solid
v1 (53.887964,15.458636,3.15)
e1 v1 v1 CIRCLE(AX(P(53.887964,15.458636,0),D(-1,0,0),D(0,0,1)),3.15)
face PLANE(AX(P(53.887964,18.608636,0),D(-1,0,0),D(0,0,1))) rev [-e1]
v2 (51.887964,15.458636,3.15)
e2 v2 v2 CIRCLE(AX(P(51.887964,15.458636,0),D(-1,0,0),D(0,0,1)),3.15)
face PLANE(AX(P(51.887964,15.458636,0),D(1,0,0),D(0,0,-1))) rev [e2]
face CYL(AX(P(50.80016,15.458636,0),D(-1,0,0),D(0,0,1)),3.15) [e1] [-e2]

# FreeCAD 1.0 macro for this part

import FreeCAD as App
import Part
import Sketcher
from FreeCAD import Vector
Q = App.Units.Quantity


def add_polygon(sketch, points):
    """Adds a closed chain of lines whose ends are joined by coincident constraints."""
    first, n = sketch.GeometryCount, len(points)
    for a, b in zip(points, points[1:] + points[:1]):
        sketch.addGeometry(Part.LineSegment(App.Vector(*a, 0), App.Vector(*b, 0)), False)
    for i in range(n):
        sketch.addConstraint(Sketcher.Constraint("Coincident", first + i, 2, first + (i + 1) % n, 1))

doc = App.newDocument("Part")
params = doc.addObject("Spreadsheet::Sheet", "Params")
for row, (alias, value) in enumerate([
    ("sketch1_width", "2 mm"),
    ("sketch1_height", "3.15 mm"),
    ("revolution_angle", "360 deg"),
], start=1):
    params.set(f"A{row}", alias)
    params.set(f"B{row}", "=" + value)
    params.setAlias(f"B{row}", alias)

body = doc.addObject("PartDesign::Body", "Body")

# Sketch on XY plane
sketch1 = doc.addObject("Sketcher::SketchObject", "Sketch")
body.addObject(sketch1)
sketch1.AttachmentSupport = (doc.XY_Plane, [""])
sketch1.MapMode = "FlatFace"
add_polygon(sketch1, [(51.9, 18.6), (51.9, 15.5), (53.9, 15.5), (53.9, 18.6)])  # lines 0-3
sketch1.addGeometry(Part.LineSegment(Vector(51.9, 15.5, 0), Vector(53.9, 15.5, 0)), True)  # axis
sketch1.addConstraint([
    Sketcher.Constraint("Vertical", 0),
    Sketcher.Constraint("Horizontal", 1),
    Sketcher.Constraint("Vertical", 2),
    Sketcher.Constraint("Horizontal", 3),
    Sketcher.Constraint("Horizontal", 4),
    Sketcher.Constraint("Coincident", 4, 1, 0, 2),
    Sketcher.Constraint("Vertical", 2, 2, 4, 2),
    Sketcher.Constraint("DistanceX", 1, 1, 1, 2, Q("2 mm")),
    Sketcher.Constraint("DistanceY", 0, 2, 0, 1, Q("3.15 mm")),
    Sketcher.Constraint("DistanceX", -1, 1, 0, 2, Q("51.887964 mm")),
    Sketcher.Constraint("DistanceY", -1, 1, 0, 2, Q("15.458636 mm")),
])
sketch1.setExpression("Constraints[11]", "Params.sketch1_width")
sketch1.setExpression("Constraints[12]", "Params.sketch1_height")
revolution = doc.addObject("PartDesign::Revolution", "Revolution")
body.addObject(revolution)
revolution.Profile = sketch1
revolution.ReferenceAxis = (sketch1, ["Axis0"])
revolution.setExpression("Angle", "Params.revolution_angle")

doc.recompute()
